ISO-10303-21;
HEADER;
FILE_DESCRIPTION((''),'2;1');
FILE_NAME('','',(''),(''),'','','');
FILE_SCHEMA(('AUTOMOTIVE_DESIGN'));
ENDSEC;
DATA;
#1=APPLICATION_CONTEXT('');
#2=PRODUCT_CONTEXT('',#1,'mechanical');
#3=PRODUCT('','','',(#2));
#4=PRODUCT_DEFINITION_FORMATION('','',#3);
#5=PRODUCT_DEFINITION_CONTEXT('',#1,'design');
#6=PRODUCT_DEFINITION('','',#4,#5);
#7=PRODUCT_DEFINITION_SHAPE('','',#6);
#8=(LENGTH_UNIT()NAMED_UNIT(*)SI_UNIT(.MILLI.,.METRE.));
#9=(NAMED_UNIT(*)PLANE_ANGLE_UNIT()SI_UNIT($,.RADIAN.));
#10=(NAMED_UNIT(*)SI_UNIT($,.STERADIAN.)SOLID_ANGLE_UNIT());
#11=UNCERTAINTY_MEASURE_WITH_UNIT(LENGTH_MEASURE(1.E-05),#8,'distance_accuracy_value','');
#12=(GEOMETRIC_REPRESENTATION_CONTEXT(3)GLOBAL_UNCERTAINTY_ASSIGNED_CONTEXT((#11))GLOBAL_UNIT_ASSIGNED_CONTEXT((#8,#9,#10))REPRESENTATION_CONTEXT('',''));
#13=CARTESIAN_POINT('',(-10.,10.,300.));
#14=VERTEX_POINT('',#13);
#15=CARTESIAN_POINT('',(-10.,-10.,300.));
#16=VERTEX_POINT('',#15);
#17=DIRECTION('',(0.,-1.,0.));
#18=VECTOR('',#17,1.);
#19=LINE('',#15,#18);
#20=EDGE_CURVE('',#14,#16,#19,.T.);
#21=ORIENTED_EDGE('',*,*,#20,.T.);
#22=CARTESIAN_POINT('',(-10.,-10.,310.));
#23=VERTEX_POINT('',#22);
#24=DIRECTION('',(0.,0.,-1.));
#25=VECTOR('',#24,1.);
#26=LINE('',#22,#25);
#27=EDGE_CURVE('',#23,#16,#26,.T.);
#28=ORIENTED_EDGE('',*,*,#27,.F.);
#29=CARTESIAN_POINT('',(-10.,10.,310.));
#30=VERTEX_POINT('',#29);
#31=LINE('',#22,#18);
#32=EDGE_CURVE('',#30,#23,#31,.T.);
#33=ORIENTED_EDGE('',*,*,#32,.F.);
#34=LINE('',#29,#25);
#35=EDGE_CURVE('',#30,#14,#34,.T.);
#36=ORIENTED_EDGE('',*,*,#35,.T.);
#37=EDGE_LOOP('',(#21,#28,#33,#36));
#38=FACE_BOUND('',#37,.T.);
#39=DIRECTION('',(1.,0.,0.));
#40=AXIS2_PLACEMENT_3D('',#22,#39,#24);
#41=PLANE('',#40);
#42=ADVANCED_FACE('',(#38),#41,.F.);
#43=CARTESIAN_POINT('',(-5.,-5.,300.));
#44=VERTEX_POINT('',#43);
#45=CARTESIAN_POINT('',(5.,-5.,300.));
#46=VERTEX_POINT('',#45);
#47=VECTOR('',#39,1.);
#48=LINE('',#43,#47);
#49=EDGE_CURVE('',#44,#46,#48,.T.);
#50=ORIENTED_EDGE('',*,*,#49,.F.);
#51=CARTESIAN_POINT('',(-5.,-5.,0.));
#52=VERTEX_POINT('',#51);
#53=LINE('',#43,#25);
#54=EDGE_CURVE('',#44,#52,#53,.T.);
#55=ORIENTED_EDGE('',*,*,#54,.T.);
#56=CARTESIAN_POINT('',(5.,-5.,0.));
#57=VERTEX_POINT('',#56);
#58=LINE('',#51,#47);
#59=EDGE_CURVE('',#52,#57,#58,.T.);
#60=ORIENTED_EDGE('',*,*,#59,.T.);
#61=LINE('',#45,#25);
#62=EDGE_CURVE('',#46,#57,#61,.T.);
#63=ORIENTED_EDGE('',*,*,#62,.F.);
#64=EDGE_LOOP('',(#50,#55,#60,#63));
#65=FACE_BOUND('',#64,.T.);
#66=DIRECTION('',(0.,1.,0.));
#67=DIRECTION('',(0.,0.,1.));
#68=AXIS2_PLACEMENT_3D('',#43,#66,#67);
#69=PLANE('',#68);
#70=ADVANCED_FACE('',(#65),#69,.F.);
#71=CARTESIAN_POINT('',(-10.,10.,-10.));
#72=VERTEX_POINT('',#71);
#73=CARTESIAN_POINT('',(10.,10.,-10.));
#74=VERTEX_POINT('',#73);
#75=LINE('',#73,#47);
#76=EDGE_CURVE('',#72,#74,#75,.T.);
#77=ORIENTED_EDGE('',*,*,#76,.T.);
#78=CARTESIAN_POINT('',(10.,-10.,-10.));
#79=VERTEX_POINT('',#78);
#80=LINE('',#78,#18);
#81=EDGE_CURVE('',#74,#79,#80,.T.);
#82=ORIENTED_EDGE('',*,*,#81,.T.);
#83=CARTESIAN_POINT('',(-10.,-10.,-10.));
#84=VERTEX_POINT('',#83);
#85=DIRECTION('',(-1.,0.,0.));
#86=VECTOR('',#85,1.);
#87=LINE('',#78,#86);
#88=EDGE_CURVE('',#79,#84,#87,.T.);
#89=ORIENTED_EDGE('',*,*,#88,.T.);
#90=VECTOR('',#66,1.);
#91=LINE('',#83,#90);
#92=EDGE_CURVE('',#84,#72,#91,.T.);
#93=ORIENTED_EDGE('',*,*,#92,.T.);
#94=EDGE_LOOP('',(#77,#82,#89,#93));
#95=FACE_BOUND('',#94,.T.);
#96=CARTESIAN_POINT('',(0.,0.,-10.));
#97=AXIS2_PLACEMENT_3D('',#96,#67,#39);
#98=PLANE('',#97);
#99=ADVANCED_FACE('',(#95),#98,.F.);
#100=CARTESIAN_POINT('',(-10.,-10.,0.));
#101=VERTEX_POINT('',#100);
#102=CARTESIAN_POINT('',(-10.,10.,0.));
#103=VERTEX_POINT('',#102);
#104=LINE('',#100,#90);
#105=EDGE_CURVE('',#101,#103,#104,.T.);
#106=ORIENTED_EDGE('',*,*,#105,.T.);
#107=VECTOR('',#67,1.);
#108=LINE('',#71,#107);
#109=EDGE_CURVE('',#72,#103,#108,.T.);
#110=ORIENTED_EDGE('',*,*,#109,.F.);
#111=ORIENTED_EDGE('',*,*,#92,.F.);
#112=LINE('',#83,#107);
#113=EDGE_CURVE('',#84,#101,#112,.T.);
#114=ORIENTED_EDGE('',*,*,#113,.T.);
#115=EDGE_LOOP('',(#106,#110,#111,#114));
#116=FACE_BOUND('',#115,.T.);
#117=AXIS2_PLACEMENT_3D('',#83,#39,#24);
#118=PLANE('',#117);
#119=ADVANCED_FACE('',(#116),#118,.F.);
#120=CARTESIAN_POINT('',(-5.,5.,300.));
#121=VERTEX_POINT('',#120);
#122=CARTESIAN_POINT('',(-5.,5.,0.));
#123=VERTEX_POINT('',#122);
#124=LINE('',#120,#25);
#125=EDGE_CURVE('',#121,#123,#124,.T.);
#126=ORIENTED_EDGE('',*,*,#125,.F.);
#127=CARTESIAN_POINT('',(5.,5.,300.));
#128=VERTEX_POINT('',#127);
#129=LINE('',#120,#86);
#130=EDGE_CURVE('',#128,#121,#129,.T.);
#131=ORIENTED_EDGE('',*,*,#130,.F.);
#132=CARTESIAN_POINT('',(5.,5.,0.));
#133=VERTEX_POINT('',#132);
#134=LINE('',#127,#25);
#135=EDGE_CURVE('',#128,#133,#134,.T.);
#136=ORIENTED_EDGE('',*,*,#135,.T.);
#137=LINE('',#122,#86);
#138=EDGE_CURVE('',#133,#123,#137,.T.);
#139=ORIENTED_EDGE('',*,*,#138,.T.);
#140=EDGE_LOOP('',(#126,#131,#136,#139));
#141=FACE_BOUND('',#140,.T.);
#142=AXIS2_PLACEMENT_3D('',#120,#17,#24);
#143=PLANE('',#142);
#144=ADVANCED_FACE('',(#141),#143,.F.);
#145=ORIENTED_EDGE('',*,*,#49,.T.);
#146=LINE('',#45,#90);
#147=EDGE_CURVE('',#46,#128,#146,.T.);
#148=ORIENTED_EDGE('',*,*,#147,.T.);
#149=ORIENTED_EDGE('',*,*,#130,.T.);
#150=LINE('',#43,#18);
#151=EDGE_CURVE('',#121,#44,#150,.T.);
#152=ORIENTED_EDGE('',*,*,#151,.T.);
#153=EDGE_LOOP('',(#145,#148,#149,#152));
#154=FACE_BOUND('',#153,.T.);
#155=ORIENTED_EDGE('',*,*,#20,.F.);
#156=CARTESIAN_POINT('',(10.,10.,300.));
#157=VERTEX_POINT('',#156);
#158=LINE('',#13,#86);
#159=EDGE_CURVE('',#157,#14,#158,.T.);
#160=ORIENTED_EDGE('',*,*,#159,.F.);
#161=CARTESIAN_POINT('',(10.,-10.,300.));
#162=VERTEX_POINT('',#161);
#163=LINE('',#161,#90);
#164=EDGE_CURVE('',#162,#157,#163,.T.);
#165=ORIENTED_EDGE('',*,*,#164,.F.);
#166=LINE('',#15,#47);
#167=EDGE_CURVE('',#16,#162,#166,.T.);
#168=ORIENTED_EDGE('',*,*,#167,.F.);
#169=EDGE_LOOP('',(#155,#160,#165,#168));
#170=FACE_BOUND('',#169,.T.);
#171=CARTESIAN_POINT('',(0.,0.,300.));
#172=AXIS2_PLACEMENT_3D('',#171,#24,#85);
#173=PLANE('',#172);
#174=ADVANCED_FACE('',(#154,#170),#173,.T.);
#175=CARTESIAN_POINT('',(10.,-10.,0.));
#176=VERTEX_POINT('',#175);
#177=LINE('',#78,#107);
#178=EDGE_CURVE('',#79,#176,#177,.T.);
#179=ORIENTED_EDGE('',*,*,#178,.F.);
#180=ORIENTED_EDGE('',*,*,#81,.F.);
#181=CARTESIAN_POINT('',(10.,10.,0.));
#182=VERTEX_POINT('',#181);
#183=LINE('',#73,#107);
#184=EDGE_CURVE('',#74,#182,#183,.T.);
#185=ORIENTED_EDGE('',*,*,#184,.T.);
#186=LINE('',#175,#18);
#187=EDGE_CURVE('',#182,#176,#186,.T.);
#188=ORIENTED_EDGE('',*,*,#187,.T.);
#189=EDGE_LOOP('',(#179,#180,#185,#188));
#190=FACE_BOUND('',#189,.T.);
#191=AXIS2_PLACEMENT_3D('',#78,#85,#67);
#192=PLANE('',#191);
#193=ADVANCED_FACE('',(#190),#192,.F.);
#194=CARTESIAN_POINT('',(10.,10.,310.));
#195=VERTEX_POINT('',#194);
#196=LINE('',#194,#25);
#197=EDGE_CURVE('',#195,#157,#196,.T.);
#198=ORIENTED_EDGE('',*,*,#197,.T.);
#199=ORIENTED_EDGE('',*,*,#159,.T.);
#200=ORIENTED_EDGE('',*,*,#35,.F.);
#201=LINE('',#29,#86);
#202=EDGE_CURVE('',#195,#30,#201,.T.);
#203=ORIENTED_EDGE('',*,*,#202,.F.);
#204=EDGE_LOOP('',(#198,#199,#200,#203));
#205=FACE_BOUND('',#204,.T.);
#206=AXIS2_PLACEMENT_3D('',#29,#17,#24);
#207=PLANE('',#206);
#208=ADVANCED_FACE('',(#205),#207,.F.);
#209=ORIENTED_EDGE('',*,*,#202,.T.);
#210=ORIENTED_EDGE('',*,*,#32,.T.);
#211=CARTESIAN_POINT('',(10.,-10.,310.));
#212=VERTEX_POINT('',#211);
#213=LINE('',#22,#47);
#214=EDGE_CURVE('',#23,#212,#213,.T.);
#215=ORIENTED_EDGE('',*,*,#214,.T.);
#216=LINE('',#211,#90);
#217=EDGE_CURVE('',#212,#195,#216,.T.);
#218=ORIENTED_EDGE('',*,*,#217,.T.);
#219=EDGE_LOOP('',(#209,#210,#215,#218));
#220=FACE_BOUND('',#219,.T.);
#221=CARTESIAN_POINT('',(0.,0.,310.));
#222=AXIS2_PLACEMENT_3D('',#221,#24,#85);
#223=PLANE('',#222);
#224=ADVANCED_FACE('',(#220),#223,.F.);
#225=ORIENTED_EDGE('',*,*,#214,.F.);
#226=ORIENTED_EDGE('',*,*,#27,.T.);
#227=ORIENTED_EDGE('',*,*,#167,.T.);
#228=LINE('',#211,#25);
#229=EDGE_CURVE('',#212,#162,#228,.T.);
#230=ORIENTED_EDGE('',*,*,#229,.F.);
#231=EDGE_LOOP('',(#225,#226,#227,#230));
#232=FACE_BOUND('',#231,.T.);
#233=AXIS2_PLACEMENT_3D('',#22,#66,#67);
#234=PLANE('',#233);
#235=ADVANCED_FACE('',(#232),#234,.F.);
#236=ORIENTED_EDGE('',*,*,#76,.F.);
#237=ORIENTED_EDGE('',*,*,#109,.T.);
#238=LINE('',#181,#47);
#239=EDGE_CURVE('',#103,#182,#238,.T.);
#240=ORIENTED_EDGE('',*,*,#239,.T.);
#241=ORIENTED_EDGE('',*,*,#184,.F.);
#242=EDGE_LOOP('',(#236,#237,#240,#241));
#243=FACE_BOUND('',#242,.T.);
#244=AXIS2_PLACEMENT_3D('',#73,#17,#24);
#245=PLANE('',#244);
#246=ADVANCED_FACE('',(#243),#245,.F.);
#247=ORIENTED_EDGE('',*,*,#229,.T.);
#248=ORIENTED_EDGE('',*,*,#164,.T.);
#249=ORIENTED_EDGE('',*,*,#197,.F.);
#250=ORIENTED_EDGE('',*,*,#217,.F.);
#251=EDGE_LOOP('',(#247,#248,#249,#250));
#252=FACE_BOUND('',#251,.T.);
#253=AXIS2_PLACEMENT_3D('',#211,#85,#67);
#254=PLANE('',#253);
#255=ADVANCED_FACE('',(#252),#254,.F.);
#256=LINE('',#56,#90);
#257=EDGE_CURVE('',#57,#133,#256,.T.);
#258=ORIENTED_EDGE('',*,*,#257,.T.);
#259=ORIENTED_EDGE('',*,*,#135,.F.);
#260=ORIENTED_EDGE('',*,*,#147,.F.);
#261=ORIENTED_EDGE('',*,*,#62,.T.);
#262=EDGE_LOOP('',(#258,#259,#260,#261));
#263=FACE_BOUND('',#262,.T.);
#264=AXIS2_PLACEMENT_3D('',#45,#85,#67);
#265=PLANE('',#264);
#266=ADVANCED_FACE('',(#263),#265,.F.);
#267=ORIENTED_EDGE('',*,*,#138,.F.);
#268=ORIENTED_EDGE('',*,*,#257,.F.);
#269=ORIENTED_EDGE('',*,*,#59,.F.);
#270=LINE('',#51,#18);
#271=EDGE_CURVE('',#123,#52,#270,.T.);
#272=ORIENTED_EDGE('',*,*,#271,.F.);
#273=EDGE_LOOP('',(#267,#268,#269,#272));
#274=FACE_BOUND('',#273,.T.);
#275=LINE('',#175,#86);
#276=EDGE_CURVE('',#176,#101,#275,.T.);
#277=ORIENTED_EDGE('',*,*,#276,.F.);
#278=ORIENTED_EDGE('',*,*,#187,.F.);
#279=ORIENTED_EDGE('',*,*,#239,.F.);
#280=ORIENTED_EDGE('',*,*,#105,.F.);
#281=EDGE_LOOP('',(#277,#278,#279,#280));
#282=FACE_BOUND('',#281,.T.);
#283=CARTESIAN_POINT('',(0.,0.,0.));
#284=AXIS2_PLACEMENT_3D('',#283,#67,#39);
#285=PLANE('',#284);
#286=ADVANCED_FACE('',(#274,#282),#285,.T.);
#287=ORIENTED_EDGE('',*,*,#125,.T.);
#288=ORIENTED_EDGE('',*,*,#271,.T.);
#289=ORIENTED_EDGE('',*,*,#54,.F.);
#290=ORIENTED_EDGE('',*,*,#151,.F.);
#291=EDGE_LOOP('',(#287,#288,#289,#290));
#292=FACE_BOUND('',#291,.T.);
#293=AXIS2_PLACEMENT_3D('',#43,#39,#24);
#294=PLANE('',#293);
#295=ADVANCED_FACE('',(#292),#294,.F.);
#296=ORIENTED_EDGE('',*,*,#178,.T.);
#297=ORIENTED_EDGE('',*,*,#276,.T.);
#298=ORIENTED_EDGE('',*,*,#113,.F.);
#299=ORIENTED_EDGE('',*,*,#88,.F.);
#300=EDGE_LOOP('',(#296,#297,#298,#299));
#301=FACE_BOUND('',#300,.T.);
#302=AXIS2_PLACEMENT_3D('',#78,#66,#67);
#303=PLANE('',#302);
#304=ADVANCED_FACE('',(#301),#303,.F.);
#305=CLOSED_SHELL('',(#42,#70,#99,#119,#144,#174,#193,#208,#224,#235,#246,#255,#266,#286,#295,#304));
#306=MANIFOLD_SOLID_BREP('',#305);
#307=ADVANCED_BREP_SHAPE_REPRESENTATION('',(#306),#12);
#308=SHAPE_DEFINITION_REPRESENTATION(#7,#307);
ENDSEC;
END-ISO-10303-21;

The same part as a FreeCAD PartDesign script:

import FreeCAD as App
import Part
import Sketcher

doc = App.newDocument("Part")
params = doc.addObject("Spreadsheet::Sheet", "Params")
for row, (alias, value) in enumerate([
    ("sketch1_width", "10 mm"),
    ("pad1_length", "300 mm"),
    ("sketch2_width", "20 mm"),
    ("pad2_length", "10 mm"),
    ("sketch3_width", "20 mm"),
    ("pad3_length", "10 mm"),
], start=1):
    params.set(f"A{row}", alias)
    params.set(f"B{row}", "=" + value)
    params.setAlias(f"B{row}", alias)

body = doc.addObject("PartDesign::Body", "Body")

sketch1 = body.newObject("Sketcher::SketchObject", "Sketch")
sketch1.AttachmentSupport = (doc.getObject("XY_Plane"), [""])
sketch1.MapMode = "FlatFace"
sketch1.addGeometry([
    Part.LineSegment(App.Vector(-5, 5, 0), App.Vector(-5, -5, 0)),
    Part.LineSegment(App.Vector(-5, -5, 0), App.Vector(5, -5, 0)),
    Part.LineSegment(App.Vector(5, -5, 0), App.Vector(5, 5, 0)),
    Part.LineSegment(App.Vector(5, 5, 0), App.Vector(-5, 5, 0)),
], False)
sketch1.addConstraint([
    Sketcher.Constraint("Coincident", 0, 2, 1, 1),
    Sketcher.Constraint("Coincident", 1, 2, 2, 1),
    Sketcher.Constraint("Coincident", 2, 2, 3, 1),
    Sketcher.Constraint("Coincident", 3, 2, 0, 1),
    Sketcher.Constraint("Vertical", 0),
    Sketcher.Constraint("Horizontal", 1),
    Sketcher.Constraint("Vertical", 2),
    Sketcher.Constraint("Horizontal", 3),
    Sketcher.Constraint("Symmetric", 0, 2, 2, 2, -1, 1),
    Sketcher.Constraint("Equal", 3, 0),
    Sketcher.Constraint("DistanceX", 1, 1, 1, 2, 10.0),
])
sketch1.setExpression("Constraints[10]", "Params.sketch1_width")
pad1 = body.newObject("PartDesign::Pad", "Pad")
pad1.Profile = sketch1
pad1.setExpression("Length", "Params.pad1_length")

sketch2 = body.newObject("Sketcher::SketchObject", "Sketch001")
sketch2.AttachmentSupport = (doc.getObject("XY_Plane"), [""])
sketch2.MapMode = "FlatFace"
sketch2.AttachmentOffset = App.Placement(App.Vector(0, 0, 300), App.Rotation())
sketch2.addGeometry([
    Part.LineSegment(App.Vector(-10, 10, 0), App.Vector(-10, -10, 0)),
    Part.LineSegment(App.Vector(-10, -10, 0), App.Vector(10, -10, 0)),
    Part.LineSegment(App.Vector(10, -10, 0), App.Vector(10, 10, 0)),
    Part.LineSegment(App.Vector(10, 10, 0), App.Vector(-10, 10, 0)),
], False)
sketch2.addConstraint([
    Sketcher.Constraint("Coincident", 0, 2, 1, 1),
    Sketcher.Constraint("Coincident", 1, 2, 2, 1),
    Sketcher.Constraint("Coincident", 2, 2, 3, 1),
    Sketcher.Constraint("Coincident", 3, 2, 0, 1),
    Sketcher.Constraint("Vertical", 0),
    Sketcher.Constraint("Horizontal", 1),
    Sketcher.Constraint("Vertical", 2),
    Sketcher.Constraint("Horizontal", 3),
    Sketcher.Constraint("Symmetric", 0, 2, 2, 2, -1, 1),
    Sketcher.Constraint("Equal", 3, 0),
    Sketcher.Constraint("DistanceX", 1, 1, 1, 2, 20.0),
])
sketch2.setExpression("Constraints[10]", "Params.sketch2_width")
pad2 = body.newObject("PartDesign::Pad", "Pad001")
pad2.Profile = sketch2
pad2.setExpression("Length", "Params.pad2_length")

sketch3 = body.newObject("Sketcher::SketchObject", "Sketch002")
sketch3.AttachmentSupport = (doc.getObject("XY_Plane"), [""])
sketch3.MapMode = "FlatFace"
sketch3.addGeometry([
    Part.LineSegment(App.Vector(10, 10, 0), App.Vector(10, -10, 0)),
    Part.LineSegment(App.Vector(10, -10, 0), App.Vector(-10, -10, 0)),
    Part.LineSegment(App.Vector(-10, -10, 0), App.Vector(-10, 10, 0)),
    Part.LineSegment(App.Vector(-10, 10, 0), App.Vector(10, 10, 0)),
], False)
sketch3.addConstraint([
    Sketcher.Constraint("Coincident", 0, 2, 1, 1),
    Sketcher.Constraint("Coincident", 1, 2, 2, 1),
    Sketcher.Constraint("Coincident", 2, 2, 3, 1),
    Sketcher.Constraint("Coincident", 3, 2, 0, 1),
    Sketcher.Constraint("Vertical", 0),
    Sketcher.Constraint("Horizontal", 1),
    Sketcher.Constraint("Vertical", 2),
    Sketcher.Constraint("Horizontal", 3),
    Sketcher.Constraint("Symmetric", 0, 2, 2, 2, -1, 1),
    Sketcher.Constraint("Equal", 3, 0),
    Sketcher.Constraint("DistanceX", 1, 2, 1, 1, 20.0),
])
sketch3.setExpression("Constraints[10]", "Params.sketch3_width")
pad3 = body.newObject("PartDesign::Pad", "Pad002")
pad3.Profile = sketch3
pad3.setExpression("Length", "Params.pad3_length")
pad3.Reversed = True

doc.recompute()
